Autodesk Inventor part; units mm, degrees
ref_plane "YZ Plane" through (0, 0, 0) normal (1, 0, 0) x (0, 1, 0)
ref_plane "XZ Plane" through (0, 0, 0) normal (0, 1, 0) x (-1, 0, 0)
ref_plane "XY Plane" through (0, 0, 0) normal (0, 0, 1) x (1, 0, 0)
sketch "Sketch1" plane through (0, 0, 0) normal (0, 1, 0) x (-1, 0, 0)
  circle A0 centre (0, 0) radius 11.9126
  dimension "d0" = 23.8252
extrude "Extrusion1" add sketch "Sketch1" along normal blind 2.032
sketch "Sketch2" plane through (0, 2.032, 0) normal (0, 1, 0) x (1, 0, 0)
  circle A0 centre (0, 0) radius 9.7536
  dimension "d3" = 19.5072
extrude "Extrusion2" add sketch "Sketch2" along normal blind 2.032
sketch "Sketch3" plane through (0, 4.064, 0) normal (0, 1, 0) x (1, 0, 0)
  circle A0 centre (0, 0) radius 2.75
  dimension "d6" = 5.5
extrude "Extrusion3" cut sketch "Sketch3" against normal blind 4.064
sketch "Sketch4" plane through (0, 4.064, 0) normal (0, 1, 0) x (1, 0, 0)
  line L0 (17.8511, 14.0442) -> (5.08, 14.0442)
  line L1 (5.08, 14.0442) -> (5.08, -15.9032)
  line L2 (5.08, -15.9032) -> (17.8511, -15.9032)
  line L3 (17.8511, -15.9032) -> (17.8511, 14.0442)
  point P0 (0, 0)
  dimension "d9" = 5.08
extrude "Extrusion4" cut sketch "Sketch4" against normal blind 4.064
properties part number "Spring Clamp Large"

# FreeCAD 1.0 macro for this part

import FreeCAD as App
import Part
import Sketcher
Q = App.Units.Quantity

doc = App.newDocument("Part")
body = doc.addObject("PartDesign::Body", "Body")

# Sketch on XZ plane
sketch1 = doc.addObject("Sketcher::SketchObject", "Sketch")
body.addObject(sketch1)
sketch1.AttachmentSupport = (doc.XZ_Plane, [""])
sketch1.MapMode = "FlatFace"
sketch1.addGeometry(Part.Circle(App.Vector(0, 0, 0), App.Vector(0, 0, 1), 12), False)
sketch1.addConstraint(Sketcher.Constraint("Coincident", 0, 3, -1, 1))
sketch1.addConstraint(Sketcher.Constraint("Diameter", 0, Q("0.938 in")))
pad1 = doc.addObject("PartDesign::Pad", "Pad")
body.addObject(pad1)
pad1.Profile = sketch1
pad1.Length = Q("0.08 in")
pad1.Reversed = True

# Sketch on XZ plane
sketch2 = doc.addObject("Sketcher::SketchObject", "Sketch001")
body.addObject(sketch2)
sketch2.AttachmentSupport = (doc.XZ_Plane, [""])
sketch2.MapMode = "FlatFace"
sketch2.AttachmentOffset = App.Placement(App.Vector(0, 0, -0.08 * 25.4), App.Rotation())
sketch2.addGeometry(Part.Circle(App.Vector(0, 0, 0), App.Vector(0, 0, 1), 10), False)
sketch2.addConstraint(Sketcher.Constraint("Coincident", 0, 3, -1, 1))
sketch2.addConstraint(Sketcher.Constraint("Diameter", 0, Q("0.768 in")))
pad2 = doc.addObject("PartDesign::Pad", "Pad001")
body.addObject(pad2)
pad2.Profile = sketch2
pad2.Length = Q("0.08 in")
pad2.Reversed = True

# Sketch on XZ plane
sketch3 = doc.addObject("Sketcher::SketchObject", "Sketch002")
body.addObject(sketch3)
sketch3.AttachmentSupport = (doc.XZ_Plane, [""])
sketch3.MapMode = "FlatFace"
sketch3.AttachmentOffset = App.Placement(App.Vector(0, 0, -0.16 * 25.4), App.Rotation())
sketch3.addGeometry(Part.Circle(App.Vector(0, 0, 0), App.Vector(0, 0, 1), 2.8), False)
sketch3.addConstraint(Sketcher.Constraint("Coincident", 0, 3, -1, 1))
sketch3.addConstraint(Sketcher.Constraint("Diameter", 0, 5.5))
pocket1 = doc.addObject("PartDesign::Pocket", "Pocket")
body.addObject(pocket1)
pocket1.Profile = sketch3
pocket1.Length = Q("0.16 in")
pocket1.Reversed = True

# Sketch on XZ plane
sketch4 = doc.addObject("Sketcher::SketchObject", "Sketch003")
body.addObject(sketch4)
sketch4.AttachmentSupport = (doc.XZ_Plane, [""])
sketch4.MapMode = "FlatFace"
sketch4.AttachmentOffset = App.Placement(App.Vector(0, 0, -0.16 * 25.4), App.Rotation())
sketch4.addGeometry(Part.LineSegment(App.Vector(18, 16, 0), App.Vector(18, -14, 0)), False)
sketch4.addGeometry(Part.LineSegment(App.Vector(18, -14, 0), App.Vector(5, -14, 0)), False)
sketch4.addGeometry(Part.LineSegment(App.Vector(5, -14, 0), App.Vector(5, 16, 0)), False)
sketch4.addGeometry(Part.LineSegment(App.Vector(5, 16, 0), App.Vector(18, 16, 0)), False)
sketch4.addConstraint(Sketcher.Constraint("Coincident", 0, 2, 1, 1))
sketch4.addConstraint(Sketcher.Constraint("Coincident", 1, 2, 2, 1))
sketch4.addConstraint(Sketcher.Constraint("Coincident", 2, 2, 3, 1))
sketch4.addConstraint(Sketcher.Constraint("Coincident", 3, 2, 0, 1))
sketch4.addConstraint(Sketcher.Constraint("Vertical", 0))
sketch4.addConstraint(Sketcher.Constraint("Horizontal", 1))
sketch4.addConstraint(Sketcher.Constraint("Vertical", 2))
sketch4.addConstraint(Sketcher.Constraint("Horizontal", 3))
sketch4.addConstraint(Sketcher.Constraint("DistanceX", -1, 1, 1, 2, Q("0.2 in")))
sketch4.addConstraint(Sketcher.Constraint("DistanceX", 1, 2, 1, 1, Q("0.5028 in")))
sketch4.addConstraint(Sketcher.Constraint("DistanceY", 0, 2, 0, 1, 29.9474))
sketch4.addConstraint(Sketcher.Constraint("DistanceY", -1, 1, 2, 2, Q("0.6261 in")))
pocket2 = doc.addObject("PartDesign::Pocket", "Pocket001")
body.addObject(pocket2)
pocket2.Profile = sketch4
pocket2.Length = Q("0.16 in")
pocket2.Reversed = True

doc.recompute()
